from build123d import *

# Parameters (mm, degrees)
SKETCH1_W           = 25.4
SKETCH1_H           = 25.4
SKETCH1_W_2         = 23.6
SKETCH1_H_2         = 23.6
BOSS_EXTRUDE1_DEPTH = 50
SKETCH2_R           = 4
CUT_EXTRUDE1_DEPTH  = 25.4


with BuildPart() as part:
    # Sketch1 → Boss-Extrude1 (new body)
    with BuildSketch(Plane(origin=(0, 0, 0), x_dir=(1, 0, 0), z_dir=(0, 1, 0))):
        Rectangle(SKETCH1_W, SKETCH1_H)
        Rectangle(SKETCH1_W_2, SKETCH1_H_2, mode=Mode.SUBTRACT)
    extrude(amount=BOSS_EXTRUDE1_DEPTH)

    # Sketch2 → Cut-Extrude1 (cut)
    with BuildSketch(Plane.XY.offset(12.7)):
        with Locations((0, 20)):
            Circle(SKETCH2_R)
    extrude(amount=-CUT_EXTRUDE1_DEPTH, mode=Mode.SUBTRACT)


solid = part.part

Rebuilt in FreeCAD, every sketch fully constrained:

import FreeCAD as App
import Part
import Sketcher

V = App.Vector
Q = App.Units.Quantity

doc = App.newDocument("Part")
params = doc.addObject("Spreadsheet::Sheet", "Params")
for row, (alias, value) in enumerate([
    ("sketch1_width", "25.4 mm"),
    ("sketch1_width2", "23.6 mm"),
    ("pad1_length", "50 mm"),
    ("sketch2_diameter", "8 mm"),
    ("pocket1_length", "25.4 mm"),
], start=1):
    params.set(f"A{row}", alias)
    params.set(f"B{row}", "=" + value)
    params.setAlias(f"B{row}", alias)

body = doc.addObject("PartDesign::Body", "Body")

# Sketch on XZ plane
sketch1 = body.newObject("Sketcher::SketchObject", "Sketch")
sketch1.AttachmentSupport = (doc.getObject("XZ_Plane"), [""])
sketch1.MapMode = "FlatFace"
sketch1.addGeometry(Part.LineSegment(V(-12.7, -12.7, 0), V(-12.7, 12.7, 0)), False)
sketch1.addGeometry(Part.LineSegment(V(-12.7, 12.7, 0), V(12.7, 12.7, 0)), False)
sketch1.addGeometry(Part.LineSegment(V(12.7, 12.7, 0), V(12.7, -12.7, 0)), False)
sketch1.addGeometry(Part.LineSegment(V(12.7, -12.7, 0), V(-12.7, -12.7, 0)), False)
sketch1.addGeometry(Part.LineSegment(V(11.8, 11.8, 0), V(-11.8, 11.8, 0)), False)
sketch1.addGeometry(Part.LineSegment(V(-11.8, 11.8, 0), V(-11.8, -11.8, 0)), False)
sketch1.addGeometry(Part.LineSegment(V(-11.8, -11.8, 0), V(11.8, -11.8, 0)), False)
sketch1.addGeometry(Part.LineSegment(V(11.8, -11.8, 0), V(11.8, 11.8, 0)), False)
sketch1.addConstraint(Sketcher.Constraint("Coincident", 0, 2, 1, 1))
sketch1.addConstraint(Sketcher.Constraint("Coincident", 1, 2, 2, 1))
sketch1.addConstraint(Sketcher.Constraint("Coincident", 2, 2, 3, 1))
sketch1.addConstraint(Sketcher.Constraint("Coincident", 3, 2, 0, 1))
sketch1.addConstraint(Sketcher.Constraint("Coincident", 4, 2, 5, 1))
sketch1.addConstraint(Sketcher.Constraint("Coincident", 5, 2, 6, 1))
sketch1.addConstraint(Sketcher.Constraint("Coincident", 6, 2, 7, 1))
sketch1.addConstraint(Sketcher.Constraint("Coincident", 7, 2, 4, 1))
sketch1.addConstraint(Sketcher.Constraint("Vertical", 0))
sketch1.addConstraint(Sketcher.Constraint("Horizontal", 1))
sketch1.addConstraint(Sketcher.Constraint("Vertical", 2))
sketch1.addConstraint(Sketcher.Constraint("Horizontal", 3))
sketch1.addConstraint(Sketcher.Constraint("Horizontal", 4))
sketch1.addConstraint(Sketcher.Constraint("Vertical", 5))
sketch1.addConstraint(Sketcher.Constraint("Horizontal", 6))
sketch1.addConstraint(Sketcher.Constraint("Vertical", 7))
sketch1.addConstraint(Sketcher.Constraint("Symmetric", 0, 2, 2, 2, -1, 1))
sketch1.addConstraint(Sketcher.Constraint("Symmetric", 4, 2, 6, 2, -1, 1))
sketch1.addConstraint(Sketcher.Constraint("Equal", 3, 0))
sketch1.addConstraint(Sketcher.Constraint("Equal", 6, 5))
sketch1.addConstraint(Sketcher.Constraint("DistanceX", 1, 1, 1, 2, Q("25.4 mm")))
sketch1.addConstraint(Sketcher.Constraint("DistanceX", 4, 2, 4, 1, Q("23.6 mm")))
sketch1.setExpression("Constraints[20]", "Params.sketch1_width")
sketch1.setExpression("Constraints[21]", "Params.sketch1_width2")
pad1 = body.newObject("PartDesign::Pad", "Pad")
pad1.Profile = sketch1
pad1.setExpression("Length", "Params.pad1_length")
pad1.Reversed = True

# Sketch on XY plane
sketch2 = body.newObject("Sketcher::SketchObject", "Sketch001")
sketch2.AttachmentSupport = (doc.getObject("XY_Plane"), [""])
sketch2.MapMode = "FlatFace"
sketch2.AttachmentOffset = App.Placement(V(0, 0, 12.7), App.Rotation())
sketch2.addGeometry(Part.Circle(V(0, 20, 0), V(0, 0, 1), 4), False)
sketch2.addConstraint(Sketcher.Constraint("PointOnObject", 0, 3, -2))
sketch2.addConstraint(Sketcher.Constraint("Diameter", 0, Q("8 mm")))
sketch2.addConstraint(Sketcher.Constraint("DistanceY", -1, 1, 0, 3, Q("20 mm")))
sketch2.setExpression("Constraints[1]", "Params.sketch2_diameter")
pocket1 = body.newObject("PartDesign::Pocket", "Pocket")
pocket1.Profile = sketch2
pocket1.setExpression("Length", "Params.pocket1_length")

doc.recompute()
